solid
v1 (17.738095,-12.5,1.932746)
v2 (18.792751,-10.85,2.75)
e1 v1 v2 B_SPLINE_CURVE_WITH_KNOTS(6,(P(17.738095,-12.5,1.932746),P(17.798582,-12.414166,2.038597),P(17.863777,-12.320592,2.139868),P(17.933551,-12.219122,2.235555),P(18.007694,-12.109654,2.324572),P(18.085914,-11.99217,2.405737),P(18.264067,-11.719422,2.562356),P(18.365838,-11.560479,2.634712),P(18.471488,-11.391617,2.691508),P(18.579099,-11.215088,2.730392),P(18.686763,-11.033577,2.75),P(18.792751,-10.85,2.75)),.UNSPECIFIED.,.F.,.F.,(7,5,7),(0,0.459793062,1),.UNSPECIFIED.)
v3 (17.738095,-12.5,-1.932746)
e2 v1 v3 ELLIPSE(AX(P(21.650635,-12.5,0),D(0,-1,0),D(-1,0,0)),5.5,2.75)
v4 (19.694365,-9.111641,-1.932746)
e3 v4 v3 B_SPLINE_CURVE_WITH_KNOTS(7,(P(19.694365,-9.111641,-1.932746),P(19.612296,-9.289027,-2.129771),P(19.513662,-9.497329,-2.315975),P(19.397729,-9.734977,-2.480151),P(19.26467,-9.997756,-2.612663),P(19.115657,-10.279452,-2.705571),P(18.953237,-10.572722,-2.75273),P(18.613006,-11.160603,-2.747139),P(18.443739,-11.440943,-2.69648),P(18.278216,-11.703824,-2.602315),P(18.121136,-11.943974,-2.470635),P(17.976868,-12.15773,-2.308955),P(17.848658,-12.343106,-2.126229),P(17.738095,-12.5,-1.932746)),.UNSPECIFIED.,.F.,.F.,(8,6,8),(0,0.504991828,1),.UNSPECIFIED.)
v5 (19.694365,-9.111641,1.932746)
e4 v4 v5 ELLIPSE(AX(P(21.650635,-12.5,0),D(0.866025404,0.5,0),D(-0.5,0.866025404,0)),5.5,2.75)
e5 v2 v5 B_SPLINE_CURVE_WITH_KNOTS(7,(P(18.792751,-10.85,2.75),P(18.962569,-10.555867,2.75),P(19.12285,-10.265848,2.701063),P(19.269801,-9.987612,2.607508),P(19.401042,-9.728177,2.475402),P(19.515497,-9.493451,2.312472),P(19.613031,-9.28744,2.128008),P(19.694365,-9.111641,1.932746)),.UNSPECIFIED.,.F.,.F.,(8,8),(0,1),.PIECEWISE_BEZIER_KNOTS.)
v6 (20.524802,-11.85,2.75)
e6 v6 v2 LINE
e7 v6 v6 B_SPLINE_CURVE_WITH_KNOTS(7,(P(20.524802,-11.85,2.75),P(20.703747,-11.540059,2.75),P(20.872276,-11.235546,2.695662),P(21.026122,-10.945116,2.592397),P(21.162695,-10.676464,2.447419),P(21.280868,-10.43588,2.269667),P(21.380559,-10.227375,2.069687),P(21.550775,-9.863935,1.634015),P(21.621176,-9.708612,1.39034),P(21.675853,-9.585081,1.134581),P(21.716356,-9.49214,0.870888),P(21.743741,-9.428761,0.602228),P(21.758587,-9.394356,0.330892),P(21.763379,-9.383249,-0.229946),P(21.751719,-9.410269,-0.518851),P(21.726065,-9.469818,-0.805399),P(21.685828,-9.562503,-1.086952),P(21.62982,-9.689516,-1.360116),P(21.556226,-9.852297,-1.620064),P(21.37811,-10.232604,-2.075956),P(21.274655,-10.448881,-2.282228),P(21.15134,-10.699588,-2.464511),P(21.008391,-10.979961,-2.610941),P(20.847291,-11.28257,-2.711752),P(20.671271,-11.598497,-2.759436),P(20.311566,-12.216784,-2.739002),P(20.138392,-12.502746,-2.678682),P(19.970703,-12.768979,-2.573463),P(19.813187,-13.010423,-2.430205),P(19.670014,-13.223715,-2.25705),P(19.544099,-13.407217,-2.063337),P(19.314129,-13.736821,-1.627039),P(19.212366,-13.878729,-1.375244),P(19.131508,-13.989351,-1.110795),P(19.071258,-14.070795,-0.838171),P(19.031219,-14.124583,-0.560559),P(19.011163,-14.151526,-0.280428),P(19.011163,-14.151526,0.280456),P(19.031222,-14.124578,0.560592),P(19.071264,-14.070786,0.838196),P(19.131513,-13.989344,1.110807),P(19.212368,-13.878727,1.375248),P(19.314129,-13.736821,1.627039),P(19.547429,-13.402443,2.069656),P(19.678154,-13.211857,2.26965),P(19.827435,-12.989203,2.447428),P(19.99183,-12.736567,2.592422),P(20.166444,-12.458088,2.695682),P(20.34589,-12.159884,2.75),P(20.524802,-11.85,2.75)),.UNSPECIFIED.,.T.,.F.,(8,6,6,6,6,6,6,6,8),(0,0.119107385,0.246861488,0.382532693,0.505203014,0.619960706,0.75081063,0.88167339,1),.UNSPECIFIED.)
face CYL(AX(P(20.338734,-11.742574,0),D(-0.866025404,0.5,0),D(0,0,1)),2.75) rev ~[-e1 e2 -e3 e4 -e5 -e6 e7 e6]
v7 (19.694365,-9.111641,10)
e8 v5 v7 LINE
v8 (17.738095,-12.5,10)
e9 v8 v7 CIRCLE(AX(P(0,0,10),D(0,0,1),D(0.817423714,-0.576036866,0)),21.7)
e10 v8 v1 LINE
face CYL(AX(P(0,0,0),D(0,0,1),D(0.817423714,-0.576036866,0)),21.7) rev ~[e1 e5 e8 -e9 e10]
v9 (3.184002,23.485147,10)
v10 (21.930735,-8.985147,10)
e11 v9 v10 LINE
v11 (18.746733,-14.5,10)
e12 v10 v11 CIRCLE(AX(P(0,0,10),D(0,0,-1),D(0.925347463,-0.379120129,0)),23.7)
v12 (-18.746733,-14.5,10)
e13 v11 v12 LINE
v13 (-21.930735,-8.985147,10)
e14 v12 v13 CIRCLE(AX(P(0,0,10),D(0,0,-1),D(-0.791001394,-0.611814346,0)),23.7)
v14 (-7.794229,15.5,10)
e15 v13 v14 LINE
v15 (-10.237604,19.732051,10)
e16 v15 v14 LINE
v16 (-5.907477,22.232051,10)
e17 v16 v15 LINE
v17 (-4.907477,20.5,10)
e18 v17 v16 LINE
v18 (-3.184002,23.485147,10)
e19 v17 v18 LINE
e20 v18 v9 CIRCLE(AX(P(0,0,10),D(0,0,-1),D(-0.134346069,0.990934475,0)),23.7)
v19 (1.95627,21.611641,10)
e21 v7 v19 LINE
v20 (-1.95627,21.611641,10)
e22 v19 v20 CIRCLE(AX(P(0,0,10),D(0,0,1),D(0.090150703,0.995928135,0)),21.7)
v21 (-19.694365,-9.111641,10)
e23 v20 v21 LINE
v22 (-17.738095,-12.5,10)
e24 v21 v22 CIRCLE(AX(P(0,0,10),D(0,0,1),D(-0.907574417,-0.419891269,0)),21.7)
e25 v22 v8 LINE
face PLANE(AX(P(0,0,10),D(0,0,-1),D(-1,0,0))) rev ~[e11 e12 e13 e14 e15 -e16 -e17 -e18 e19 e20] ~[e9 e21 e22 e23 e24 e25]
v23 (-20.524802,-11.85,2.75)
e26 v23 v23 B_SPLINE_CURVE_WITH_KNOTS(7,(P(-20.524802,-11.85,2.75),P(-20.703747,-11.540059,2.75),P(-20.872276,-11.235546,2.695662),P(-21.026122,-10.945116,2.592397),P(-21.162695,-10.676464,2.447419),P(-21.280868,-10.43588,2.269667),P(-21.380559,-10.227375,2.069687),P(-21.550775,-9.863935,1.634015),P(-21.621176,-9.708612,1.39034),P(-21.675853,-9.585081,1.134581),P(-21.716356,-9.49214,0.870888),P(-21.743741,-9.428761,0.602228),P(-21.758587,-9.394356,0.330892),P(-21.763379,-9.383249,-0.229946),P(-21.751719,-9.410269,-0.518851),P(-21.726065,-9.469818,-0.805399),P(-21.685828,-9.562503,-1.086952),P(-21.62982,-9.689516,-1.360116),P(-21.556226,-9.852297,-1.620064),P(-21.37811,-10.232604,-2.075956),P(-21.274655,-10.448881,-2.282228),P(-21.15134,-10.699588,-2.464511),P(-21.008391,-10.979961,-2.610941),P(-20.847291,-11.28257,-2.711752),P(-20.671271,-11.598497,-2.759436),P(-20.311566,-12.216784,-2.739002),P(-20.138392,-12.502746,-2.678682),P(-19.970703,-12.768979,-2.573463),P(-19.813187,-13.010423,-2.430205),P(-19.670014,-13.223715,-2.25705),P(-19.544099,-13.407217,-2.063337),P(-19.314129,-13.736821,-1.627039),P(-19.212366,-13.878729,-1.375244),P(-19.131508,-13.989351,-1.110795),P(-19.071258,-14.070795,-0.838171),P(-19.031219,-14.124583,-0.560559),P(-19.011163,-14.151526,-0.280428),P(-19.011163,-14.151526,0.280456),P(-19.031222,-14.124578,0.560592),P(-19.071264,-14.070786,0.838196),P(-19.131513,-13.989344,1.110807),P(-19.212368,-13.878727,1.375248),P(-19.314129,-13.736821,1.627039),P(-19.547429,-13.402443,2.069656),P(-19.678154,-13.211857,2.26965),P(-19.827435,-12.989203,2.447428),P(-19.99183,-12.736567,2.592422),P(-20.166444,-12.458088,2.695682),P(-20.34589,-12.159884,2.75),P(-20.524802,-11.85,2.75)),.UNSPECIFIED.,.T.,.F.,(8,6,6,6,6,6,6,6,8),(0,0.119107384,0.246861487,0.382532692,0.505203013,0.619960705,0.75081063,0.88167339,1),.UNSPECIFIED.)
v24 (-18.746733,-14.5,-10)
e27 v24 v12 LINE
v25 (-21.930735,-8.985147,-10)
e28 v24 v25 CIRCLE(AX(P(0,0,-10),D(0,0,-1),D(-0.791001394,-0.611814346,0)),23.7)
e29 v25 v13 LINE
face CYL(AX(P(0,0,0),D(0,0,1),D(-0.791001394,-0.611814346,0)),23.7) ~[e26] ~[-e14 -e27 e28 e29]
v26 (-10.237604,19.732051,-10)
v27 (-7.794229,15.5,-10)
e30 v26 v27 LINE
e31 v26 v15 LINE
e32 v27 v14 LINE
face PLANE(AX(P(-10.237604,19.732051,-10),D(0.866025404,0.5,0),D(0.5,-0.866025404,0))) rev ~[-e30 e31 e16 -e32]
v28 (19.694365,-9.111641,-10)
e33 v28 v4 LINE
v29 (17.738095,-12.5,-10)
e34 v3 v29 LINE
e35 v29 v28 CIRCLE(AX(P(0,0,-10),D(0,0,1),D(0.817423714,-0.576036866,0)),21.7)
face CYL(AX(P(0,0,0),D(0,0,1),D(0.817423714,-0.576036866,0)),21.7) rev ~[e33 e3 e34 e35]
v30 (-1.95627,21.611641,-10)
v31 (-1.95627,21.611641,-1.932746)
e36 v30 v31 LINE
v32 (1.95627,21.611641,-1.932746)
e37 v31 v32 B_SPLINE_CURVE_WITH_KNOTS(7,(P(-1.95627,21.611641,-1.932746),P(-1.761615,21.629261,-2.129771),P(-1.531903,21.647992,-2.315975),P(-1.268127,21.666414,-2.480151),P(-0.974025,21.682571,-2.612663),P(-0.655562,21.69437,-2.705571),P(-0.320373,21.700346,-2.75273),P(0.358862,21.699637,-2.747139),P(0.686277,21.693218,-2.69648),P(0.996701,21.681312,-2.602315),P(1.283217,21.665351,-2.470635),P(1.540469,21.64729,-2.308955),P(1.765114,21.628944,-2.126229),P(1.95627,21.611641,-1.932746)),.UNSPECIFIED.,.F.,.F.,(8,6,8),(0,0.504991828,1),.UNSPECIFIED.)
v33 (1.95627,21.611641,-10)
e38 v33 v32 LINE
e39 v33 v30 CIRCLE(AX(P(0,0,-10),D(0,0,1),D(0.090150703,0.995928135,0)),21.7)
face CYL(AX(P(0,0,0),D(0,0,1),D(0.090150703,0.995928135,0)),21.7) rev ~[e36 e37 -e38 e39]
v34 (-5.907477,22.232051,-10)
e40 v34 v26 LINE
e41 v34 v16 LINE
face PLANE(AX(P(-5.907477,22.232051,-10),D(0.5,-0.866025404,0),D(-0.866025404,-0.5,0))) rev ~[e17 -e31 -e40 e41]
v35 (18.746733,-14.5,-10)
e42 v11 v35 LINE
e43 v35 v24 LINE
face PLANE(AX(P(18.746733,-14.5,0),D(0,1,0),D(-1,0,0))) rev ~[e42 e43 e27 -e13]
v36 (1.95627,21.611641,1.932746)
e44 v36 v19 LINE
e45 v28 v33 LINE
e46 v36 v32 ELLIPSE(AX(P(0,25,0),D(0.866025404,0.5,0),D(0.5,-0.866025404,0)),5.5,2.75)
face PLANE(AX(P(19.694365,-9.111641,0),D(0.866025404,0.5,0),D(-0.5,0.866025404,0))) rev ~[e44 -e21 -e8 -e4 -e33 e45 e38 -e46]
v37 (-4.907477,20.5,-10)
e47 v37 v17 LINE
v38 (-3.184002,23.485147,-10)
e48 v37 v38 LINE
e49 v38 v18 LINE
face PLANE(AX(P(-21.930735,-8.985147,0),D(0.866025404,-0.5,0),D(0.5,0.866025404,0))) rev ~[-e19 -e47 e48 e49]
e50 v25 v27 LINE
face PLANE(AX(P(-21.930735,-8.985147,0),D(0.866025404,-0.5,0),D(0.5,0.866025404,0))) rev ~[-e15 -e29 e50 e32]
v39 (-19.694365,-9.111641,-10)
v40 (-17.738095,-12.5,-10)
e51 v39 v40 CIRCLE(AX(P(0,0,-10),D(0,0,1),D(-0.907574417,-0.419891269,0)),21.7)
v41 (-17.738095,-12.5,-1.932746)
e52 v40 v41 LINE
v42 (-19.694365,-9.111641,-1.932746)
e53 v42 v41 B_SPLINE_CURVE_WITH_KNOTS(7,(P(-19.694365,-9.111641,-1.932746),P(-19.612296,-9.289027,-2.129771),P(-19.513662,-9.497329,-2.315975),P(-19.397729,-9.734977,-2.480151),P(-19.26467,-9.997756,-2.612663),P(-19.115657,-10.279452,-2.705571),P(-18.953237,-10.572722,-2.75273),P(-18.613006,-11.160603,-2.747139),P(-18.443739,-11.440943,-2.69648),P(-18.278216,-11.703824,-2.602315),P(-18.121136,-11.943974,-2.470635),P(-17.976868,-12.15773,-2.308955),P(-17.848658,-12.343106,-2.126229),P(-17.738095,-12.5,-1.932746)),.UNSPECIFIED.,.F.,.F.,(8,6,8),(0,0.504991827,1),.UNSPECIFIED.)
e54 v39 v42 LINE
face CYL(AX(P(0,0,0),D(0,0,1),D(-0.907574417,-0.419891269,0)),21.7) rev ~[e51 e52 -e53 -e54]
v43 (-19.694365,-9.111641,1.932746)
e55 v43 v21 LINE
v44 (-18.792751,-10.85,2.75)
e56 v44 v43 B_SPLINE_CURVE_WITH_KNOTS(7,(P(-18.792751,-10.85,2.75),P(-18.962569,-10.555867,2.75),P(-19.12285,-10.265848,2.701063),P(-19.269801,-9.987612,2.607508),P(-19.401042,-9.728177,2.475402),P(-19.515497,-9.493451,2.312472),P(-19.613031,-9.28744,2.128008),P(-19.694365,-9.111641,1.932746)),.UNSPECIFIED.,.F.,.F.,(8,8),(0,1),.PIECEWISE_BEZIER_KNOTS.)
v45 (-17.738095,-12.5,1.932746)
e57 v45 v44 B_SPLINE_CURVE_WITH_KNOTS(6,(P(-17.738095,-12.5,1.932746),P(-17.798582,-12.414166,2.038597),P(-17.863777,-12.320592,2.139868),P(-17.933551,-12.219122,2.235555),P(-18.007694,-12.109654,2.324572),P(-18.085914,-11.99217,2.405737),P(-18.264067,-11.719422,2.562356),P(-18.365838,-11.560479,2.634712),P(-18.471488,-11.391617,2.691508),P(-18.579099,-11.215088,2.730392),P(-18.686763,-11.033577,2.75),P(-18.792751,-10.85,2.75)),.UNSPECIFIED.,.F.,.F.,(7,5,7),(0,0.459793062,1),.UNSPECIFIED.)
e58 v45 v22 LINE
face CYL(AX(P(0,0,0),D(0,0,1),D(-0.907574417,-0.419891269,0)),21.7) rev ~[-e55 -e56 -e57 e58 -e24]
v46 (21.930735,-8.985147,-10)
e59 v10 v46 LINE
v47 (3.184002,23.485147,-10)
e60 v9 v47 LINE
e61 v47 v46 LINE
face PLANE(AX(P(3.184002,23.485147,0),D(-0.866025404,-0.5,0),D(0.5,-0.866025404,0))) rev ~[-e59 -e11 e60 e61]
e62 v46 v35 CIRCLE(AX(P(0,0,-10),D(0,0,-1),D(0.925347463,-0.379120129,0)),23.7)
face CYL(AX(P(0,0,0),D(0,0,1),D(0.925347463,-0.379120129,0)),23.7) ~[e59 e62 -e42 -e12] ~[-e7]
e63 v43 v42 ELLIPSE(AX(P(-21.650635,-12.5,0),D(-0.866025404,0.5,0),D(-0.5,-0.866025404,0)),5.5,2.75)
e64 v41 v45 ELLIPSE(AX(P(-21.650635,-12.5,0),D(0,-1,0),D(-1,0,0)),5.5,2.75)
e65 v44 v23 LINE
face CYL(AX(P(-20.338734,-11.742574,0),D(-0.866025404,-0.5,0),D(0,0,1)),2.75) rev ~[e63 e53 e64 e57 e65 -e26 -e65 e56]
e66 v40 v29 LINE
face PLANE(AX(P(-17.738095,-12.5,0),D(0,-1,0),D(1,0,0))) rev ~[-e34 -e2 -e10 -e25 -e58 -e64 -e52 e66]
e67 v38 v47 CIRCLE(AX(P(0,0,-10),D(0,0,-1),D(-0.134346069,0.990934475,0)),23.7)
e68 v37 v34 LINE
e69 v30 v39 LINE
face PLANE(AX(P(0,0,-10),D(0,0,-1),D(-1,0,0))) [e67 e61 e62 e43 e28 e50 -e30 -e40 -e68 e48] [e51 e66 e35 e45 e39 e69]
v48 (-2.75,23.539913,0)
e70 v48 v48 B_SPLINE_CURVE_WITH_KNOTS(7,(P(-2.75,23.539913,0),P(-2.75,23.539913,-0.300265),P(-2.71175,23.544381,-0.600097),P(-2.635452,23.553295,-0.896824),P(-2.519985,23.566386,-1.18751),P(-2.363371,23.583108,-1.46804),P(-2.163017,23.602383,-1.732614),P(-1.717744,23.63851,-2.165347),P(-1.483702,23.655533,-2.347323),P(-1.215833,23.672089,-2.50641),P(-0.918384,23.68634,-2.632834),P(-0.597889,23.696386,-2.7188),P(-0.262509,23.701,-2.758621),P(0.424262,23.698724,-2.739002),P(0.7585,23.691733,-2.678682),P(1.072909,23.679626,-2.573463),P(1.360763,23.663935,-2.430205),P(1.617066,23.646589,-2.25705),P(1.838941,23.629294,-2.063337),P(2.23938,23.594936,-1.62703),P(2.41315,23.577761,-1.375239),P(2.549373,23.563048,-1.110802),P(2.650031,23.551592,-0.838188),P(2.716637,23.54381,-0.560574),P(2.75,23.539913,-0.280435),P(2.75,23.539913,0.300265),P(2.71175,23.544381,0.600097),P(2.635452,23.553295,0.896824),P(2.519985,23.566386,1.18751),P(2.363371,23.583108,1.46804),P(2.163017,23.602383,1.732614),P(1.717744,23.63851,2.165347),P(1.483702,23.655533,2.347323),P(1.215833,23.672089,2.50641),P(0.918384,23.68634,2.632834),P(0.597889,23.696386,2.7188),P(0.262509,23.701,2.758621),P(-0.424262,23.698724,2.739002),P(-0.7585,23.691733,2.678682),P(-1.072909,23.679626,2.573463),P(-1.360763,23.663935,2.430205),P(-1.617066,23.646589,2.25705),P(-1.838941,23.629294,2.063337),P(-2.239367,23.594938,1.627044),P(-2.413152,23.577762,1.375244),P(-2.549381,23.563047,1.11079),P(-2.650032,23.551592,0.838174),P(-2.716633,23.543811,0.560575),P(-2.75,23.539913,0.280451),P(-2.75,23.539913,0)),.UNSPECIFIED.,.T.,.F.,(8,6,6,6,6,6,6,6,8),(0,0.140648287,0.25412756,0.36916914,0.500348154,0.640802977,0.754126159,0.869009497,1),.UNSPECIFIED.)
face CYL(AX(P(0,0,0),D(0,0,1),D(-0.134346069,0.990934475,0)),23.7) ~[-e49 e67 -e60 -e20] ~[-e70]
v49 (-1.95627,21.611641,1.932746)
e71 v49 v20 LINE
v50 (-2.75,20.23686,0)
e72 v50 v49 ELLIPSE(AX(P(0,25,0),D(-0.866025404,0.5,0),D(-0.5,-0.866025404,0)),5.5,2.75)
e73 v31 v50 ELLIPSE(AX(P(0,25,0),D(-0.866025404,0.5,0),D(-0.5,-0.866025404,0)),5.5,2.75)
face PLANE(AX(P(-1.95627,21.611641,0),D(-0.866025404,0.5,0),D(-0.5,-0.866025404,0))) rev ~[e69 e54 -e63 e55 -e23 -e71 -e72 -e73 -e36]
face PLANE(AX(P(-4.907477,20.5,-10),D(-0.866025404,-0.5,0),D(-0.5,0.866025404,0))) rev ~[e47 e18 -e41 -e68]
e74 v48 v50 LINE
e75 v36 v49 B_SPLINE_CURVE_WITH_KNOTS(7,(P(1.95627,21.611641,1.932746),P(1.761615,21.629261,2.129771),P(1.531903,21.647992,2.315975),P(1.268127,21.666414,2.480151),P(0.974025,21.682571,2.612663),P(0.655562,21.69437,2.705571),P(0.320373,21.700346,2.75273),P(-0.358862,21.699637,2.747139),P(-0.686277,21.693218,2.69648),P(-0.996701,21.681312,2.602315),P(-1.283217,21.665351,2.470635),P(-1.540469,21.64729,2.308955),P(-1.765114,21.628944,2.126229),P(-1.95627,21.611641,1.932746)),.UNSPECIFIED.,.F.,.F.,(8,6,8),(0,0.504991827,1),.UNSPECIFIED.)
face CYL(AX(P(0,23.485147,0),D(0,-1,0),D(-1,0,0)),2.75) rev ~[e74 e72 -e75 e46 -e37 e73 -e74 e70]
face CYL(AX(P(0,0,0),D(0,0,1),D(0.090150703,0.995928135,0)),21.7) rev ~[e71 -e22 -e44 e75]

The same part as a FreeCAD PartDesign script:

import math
import FreeCAD as App
import Part
import Sketcher
from FreeCAD import Vector
Q = App.Units.Quantity


def add_polygon(sketch, points):
    """Adds a closed chain of lines whose ends are joined by coincident constraints."""
    first, n = sketch.GeometryCount, len(points)
    for a, b in zip(points, points[1:] + points[:1]):
        sketch.addGeometry(Part.LineSegment(App.Vector(*a, 0), App.Vector(*b, 0)), False)
    for i in range(n):
        sketch.addConstraint(Sketcher.Constraint("Coincident", first + i, 2, first + (i + 1) % n, 1))

doc = App.newDocument("Part")
body = doc.addObject("PartDesign::Body", "Body")

# Sketch on XY plane
sketch1 = doc.addObject("Sketcher::SketchObject", "Sketch")
body.addObject(sketch1)
sketch1.AttachmentSupport = (doc.XY_Plane, [""])
sketch1.MapMode = "FlatFace"
sketch1.addGeometry([
    Part.ArcOfCircle(Part.Circle(Vector(0, 0, 0), Vector(0, 0, 1), 23.7), math.radians(82.28), math.radians(97.72)),  # 0
    Part.LineSegment(Vector(-3.2, 23.5, 0), Vector(-21.9, -9, 0)),  # 1
    Part.ArcOfCircle(Part.Circle(Vector(0, 0, 0), Vector(0, 0, 1), 23.7), math.radians(-157.72), math.radians(-142.28)),  # 2
    Part.LineSegment(Vector(-18.7, -14.5, 0), Vector(18.7, -14.5, 0)),  # 3
    Part.ArcOfCircle(Part.Circle(Vector(0, 0, 0), Vector(0, 0, 1), 23.7), math.radians(-37.72), math.radians(-22.28)),  # 4
    Part.LineSegment(Vector(21.9, -9, 0), Vector(3.2, 23.5, 0)),  # 5
    Part.LineSegment(Vector(17.7, -12.5, 0), Vector(-17.7, -12.5, 0)),  # 6
    Part.ArcOfCircle(Part.Circle(Vector(0, 0, 0), Vector(0, 0, 1), 21.7), math.radians(-155.17), math.radians(-144.83)),  # 7
    Part.LineSegment(Vector(-19.7, -9.1, 0), Vector(-2, 21.6, 0)),  # 8
    Part.ArcOfCircle(Part.Circle(Vector(0, 0, 0), Vector(0, 0, 1), 21.7), math.radians(84.83), math.radians(95.17)),  # 9
    Part.LineSegment(Vector(2, 21.6, 0), Vector(19.7, -9.1, 0)),  # 10
    Part.ArcOfCircle(Part.Circle(Vector(0, 0, 0), Vector(0, 0, 1), 21.7), math.radians(-35.17), math.radians(-24.83)),  # 11
], False)
sketch1.addConstraint([
    Sketcher.Constraint("Coincident", 0, 2, 1, 1),
    Sketcher.Constraint("Coincident", 1, 2, 2, 1),
    Sketcher.Constraint("Coincident", 2, 2, 3, 1),
    Sketcher.Constraint("Coincident", 3, 2, 4, 1),
    Sketcher.Constraint("Coincident", 4, 2, 5, 1),
    Sketcher.Constraint("Coincident", 5, 2, 0, 1),
    Sketcher.Constraint("Coincident", 6, 2, 7, 2),
    Sketcher.Constraint("Coincident", 7, 1, 8, 1),
    Sketcher.Constraint("Coincident", 8, 2, 9, 2),
    Sketcher.Constraint("Coincident", 9, 1, 10, 1),
    Sketcher.Constraint("Coincident", 10, 2, 11, 2),
    Sketcher.Constraint("Coincident", 11, 1, 6, 1),
    Sketcher.Constraint("Horizontal", 3),
    Sketcher.Constraint("Horizontal", 6),
    Sketcher.Constraint("Coincident", 0, 3, -1, 1),
    Sketcher.Constraint("Coincident", 2, 3, -1, 1),
    Sketcher.Constraint("Coincident", 4, 3, -1, 1),
    Sketcher.Constraint("Coincident", 7, 3, -1, 1),
    Sketcher.Constraint("Coincident", 9, 3, -1, 1),
    Sketcher.Constraint("Coincident", 11, 3, -1, 1),
    Sketcher.Constraint("Equal", 0, 2),
    Sketcher.Constraint("Equal", 2, 4),
    Sketcher.Constraint("Equal", 7, 9),
    Sketcher.Constraint("Equal", 9, 11),
    Sketcher.Constraint("Parallel", 1, 8),
    Sketcher.Constraint("Parallel", 5, 10),
    Sketcher.Constraint("Horizontal", 1, 2, 4, 2),
    Sketcher.Constraint("Horizontal", 0, 2, 5, 2),
    Sketcher.Constraint("Horizontal", 8, 2, 9, 1),
    Sketcher.Constraint("Radius", 0, Q("23.7 mm")),
    Sketcher.Constraint("Radius", 7, Q("21.7 mm")),
    Sketcher.Constraint("Angle", 1, Q("-120 deg")),
    Sketcher.Constraint("DistanceY", 2, 2, 6, 2, Q("2 mm")),
    Sketcher.Constraint("DistanceY", 2, 2, -1, 1, Q("14.5 mm")),
    Sketcher.Constraint("DistanceX", 0, 2, -1, 1, Q("3.184002 mm")),
    Sketcher.Constraint("Distance", 8, Q("35.476189 mm")),
])
pad1 = doc.addObject("PartDesign::Pad", "Pad")
body.addObject(pad1)
pad1.Profile = sketch1
pad1.Length = 20
pad1.Midplane = True

# Sketch on an angled plane
sketch2 = doc.addObject("Sketcher::SketchObject", "Sketch001")
body.addObject(sketch2)
sketch2.Placement = App.Placement(Vector(20.338734, -11.742574, 0), App.Rotation(Vector(0, 0, 1), Vector(0.5, 0.866025404, 0), Vector(-0.866025404, 0.5, 0), "ZXY"))
sketch2.addGeometry(Part.Circle(Vector(0, 0, 0), Vector(0, 0, 1), 2.8), False)
sketch2.addConstraint([
    Sketcher.Constraint("Coincident", 0, 3, -1, 1),
    Sketcher.Constraint("Diameter", 0, Q("5.5 mm")),
])
pocket1 = doc.addObject("PartDesign::Pocket", "Pocket")
body.addObject(pocket1)
pocket1.Profile = sketch2
pocket1.Length = 20
pocket1.Midplane = True

# Sketch on an angled plane
sketch3 = doc.addObject("Sketcher::SketchObject", "Sketch002")
body.addObject(sketch3)
sketch3.Placement = App.Placement(Vector(-20.338734, -11.742574, 0), App.Rotation(Vector(0, 0, 1), Vector(-0.5, 0.866025404, 0), Vector(-0.866025404, -0.5, 0), "ZXY"))
sketch3.addGeometry(Part.Circle(Vector(0, 0, 0), Vector(0, 0, 1), 2.8), False)
sketch3.addConstraint([
    Sketcher.Constraint("Coincident", 0, 3, -1, 1),
    Sketcher.Constraint("Diameter", 0, Q("5.5 mm")),
])
pocket2 = doc.addObject("PartDesign::Pocket", "Pocket001")
body.addObject(pocket2)
pocket2.Profile = sketch3
pocket2.Length = 20
pocket2.Midplane = True

# Sketch on XZ plane
sketch4 = doc.addObject("Sketcher::SketchObject", "Sketch003")
body.addObject(sketch4)
sketch4.AttachmentSupport = (doc.XZ_Plane, [""])
sketch4.MapMode = "FlatFace"
sketch4.AttachmentOffset = App.Placement(Vector(0, 0, -23.485147), App.Rotation())
sketch4.addGeometry(Part.Circle(Vector(0, 0, 0), Vector(0, 0, 1), 2.8), False)
sketch4.addConstraint([
    Sketcher.Constraint("Coincident", 0, 3, -1, 1),
    Sketcher.Constraint("Diameter", 0, Q("5.5 mm")),
])
pocket3 = doc.addObject("PartDesign::Pocket", "Pocket002")
body.addObject(pocket3)
pocket3.Profile = sketch4
pocket3.Length = 20
pocket3.Midplane = True

# Sketch on XY plane
sketch5 = doc.addObject("Sketcher::SketchObject", "Sketch004")
body.addObject(sketch5)
sketch5.AttachmentSupport = (doc.XY_Plane, [""])
sketch5.MapMode = "FlatFace"
sketch5.AttachmentOffset = App.Placement(Vector(0, 0, -10), App.Rotation())
add_polygon(sketch5, [(-5.9, 22.2), (-4.9, 20.5), (-7.8, 15.5), (-10.2, 19.7)])  # lines 0-3
sketch5.addConstraint([
    Sketcher.Constraint("Parallel", 0, 2),
    Sketcher.Constraint("Perpendicular", 2, 3),
    Sketcher.Constraint("Angle", 0, Q("-60 deg")),
    Sketcher.Constraint("Angle", 1, Q("-120 deg")),
    Sketcher.Constraint("Distance", 0, Q("2 mm")),
    Sketcher.Constraint("Distance", 3, Q("5 mm")),
    Sketcher.Constraint("DistanceY", -1, 1, 0, 2, Q("20.5 mm")),
    Sketcher.Constraint("DistanceX", 1, 2, -1, 1, Q("7.794229 mm")),
])
pad2 = doc.addObject("PartDesign::Pad", "Pad001")
body.addObject(pad2)
pad2.Profile = sketch5
pad2.Length = 20

doc.recompute()
